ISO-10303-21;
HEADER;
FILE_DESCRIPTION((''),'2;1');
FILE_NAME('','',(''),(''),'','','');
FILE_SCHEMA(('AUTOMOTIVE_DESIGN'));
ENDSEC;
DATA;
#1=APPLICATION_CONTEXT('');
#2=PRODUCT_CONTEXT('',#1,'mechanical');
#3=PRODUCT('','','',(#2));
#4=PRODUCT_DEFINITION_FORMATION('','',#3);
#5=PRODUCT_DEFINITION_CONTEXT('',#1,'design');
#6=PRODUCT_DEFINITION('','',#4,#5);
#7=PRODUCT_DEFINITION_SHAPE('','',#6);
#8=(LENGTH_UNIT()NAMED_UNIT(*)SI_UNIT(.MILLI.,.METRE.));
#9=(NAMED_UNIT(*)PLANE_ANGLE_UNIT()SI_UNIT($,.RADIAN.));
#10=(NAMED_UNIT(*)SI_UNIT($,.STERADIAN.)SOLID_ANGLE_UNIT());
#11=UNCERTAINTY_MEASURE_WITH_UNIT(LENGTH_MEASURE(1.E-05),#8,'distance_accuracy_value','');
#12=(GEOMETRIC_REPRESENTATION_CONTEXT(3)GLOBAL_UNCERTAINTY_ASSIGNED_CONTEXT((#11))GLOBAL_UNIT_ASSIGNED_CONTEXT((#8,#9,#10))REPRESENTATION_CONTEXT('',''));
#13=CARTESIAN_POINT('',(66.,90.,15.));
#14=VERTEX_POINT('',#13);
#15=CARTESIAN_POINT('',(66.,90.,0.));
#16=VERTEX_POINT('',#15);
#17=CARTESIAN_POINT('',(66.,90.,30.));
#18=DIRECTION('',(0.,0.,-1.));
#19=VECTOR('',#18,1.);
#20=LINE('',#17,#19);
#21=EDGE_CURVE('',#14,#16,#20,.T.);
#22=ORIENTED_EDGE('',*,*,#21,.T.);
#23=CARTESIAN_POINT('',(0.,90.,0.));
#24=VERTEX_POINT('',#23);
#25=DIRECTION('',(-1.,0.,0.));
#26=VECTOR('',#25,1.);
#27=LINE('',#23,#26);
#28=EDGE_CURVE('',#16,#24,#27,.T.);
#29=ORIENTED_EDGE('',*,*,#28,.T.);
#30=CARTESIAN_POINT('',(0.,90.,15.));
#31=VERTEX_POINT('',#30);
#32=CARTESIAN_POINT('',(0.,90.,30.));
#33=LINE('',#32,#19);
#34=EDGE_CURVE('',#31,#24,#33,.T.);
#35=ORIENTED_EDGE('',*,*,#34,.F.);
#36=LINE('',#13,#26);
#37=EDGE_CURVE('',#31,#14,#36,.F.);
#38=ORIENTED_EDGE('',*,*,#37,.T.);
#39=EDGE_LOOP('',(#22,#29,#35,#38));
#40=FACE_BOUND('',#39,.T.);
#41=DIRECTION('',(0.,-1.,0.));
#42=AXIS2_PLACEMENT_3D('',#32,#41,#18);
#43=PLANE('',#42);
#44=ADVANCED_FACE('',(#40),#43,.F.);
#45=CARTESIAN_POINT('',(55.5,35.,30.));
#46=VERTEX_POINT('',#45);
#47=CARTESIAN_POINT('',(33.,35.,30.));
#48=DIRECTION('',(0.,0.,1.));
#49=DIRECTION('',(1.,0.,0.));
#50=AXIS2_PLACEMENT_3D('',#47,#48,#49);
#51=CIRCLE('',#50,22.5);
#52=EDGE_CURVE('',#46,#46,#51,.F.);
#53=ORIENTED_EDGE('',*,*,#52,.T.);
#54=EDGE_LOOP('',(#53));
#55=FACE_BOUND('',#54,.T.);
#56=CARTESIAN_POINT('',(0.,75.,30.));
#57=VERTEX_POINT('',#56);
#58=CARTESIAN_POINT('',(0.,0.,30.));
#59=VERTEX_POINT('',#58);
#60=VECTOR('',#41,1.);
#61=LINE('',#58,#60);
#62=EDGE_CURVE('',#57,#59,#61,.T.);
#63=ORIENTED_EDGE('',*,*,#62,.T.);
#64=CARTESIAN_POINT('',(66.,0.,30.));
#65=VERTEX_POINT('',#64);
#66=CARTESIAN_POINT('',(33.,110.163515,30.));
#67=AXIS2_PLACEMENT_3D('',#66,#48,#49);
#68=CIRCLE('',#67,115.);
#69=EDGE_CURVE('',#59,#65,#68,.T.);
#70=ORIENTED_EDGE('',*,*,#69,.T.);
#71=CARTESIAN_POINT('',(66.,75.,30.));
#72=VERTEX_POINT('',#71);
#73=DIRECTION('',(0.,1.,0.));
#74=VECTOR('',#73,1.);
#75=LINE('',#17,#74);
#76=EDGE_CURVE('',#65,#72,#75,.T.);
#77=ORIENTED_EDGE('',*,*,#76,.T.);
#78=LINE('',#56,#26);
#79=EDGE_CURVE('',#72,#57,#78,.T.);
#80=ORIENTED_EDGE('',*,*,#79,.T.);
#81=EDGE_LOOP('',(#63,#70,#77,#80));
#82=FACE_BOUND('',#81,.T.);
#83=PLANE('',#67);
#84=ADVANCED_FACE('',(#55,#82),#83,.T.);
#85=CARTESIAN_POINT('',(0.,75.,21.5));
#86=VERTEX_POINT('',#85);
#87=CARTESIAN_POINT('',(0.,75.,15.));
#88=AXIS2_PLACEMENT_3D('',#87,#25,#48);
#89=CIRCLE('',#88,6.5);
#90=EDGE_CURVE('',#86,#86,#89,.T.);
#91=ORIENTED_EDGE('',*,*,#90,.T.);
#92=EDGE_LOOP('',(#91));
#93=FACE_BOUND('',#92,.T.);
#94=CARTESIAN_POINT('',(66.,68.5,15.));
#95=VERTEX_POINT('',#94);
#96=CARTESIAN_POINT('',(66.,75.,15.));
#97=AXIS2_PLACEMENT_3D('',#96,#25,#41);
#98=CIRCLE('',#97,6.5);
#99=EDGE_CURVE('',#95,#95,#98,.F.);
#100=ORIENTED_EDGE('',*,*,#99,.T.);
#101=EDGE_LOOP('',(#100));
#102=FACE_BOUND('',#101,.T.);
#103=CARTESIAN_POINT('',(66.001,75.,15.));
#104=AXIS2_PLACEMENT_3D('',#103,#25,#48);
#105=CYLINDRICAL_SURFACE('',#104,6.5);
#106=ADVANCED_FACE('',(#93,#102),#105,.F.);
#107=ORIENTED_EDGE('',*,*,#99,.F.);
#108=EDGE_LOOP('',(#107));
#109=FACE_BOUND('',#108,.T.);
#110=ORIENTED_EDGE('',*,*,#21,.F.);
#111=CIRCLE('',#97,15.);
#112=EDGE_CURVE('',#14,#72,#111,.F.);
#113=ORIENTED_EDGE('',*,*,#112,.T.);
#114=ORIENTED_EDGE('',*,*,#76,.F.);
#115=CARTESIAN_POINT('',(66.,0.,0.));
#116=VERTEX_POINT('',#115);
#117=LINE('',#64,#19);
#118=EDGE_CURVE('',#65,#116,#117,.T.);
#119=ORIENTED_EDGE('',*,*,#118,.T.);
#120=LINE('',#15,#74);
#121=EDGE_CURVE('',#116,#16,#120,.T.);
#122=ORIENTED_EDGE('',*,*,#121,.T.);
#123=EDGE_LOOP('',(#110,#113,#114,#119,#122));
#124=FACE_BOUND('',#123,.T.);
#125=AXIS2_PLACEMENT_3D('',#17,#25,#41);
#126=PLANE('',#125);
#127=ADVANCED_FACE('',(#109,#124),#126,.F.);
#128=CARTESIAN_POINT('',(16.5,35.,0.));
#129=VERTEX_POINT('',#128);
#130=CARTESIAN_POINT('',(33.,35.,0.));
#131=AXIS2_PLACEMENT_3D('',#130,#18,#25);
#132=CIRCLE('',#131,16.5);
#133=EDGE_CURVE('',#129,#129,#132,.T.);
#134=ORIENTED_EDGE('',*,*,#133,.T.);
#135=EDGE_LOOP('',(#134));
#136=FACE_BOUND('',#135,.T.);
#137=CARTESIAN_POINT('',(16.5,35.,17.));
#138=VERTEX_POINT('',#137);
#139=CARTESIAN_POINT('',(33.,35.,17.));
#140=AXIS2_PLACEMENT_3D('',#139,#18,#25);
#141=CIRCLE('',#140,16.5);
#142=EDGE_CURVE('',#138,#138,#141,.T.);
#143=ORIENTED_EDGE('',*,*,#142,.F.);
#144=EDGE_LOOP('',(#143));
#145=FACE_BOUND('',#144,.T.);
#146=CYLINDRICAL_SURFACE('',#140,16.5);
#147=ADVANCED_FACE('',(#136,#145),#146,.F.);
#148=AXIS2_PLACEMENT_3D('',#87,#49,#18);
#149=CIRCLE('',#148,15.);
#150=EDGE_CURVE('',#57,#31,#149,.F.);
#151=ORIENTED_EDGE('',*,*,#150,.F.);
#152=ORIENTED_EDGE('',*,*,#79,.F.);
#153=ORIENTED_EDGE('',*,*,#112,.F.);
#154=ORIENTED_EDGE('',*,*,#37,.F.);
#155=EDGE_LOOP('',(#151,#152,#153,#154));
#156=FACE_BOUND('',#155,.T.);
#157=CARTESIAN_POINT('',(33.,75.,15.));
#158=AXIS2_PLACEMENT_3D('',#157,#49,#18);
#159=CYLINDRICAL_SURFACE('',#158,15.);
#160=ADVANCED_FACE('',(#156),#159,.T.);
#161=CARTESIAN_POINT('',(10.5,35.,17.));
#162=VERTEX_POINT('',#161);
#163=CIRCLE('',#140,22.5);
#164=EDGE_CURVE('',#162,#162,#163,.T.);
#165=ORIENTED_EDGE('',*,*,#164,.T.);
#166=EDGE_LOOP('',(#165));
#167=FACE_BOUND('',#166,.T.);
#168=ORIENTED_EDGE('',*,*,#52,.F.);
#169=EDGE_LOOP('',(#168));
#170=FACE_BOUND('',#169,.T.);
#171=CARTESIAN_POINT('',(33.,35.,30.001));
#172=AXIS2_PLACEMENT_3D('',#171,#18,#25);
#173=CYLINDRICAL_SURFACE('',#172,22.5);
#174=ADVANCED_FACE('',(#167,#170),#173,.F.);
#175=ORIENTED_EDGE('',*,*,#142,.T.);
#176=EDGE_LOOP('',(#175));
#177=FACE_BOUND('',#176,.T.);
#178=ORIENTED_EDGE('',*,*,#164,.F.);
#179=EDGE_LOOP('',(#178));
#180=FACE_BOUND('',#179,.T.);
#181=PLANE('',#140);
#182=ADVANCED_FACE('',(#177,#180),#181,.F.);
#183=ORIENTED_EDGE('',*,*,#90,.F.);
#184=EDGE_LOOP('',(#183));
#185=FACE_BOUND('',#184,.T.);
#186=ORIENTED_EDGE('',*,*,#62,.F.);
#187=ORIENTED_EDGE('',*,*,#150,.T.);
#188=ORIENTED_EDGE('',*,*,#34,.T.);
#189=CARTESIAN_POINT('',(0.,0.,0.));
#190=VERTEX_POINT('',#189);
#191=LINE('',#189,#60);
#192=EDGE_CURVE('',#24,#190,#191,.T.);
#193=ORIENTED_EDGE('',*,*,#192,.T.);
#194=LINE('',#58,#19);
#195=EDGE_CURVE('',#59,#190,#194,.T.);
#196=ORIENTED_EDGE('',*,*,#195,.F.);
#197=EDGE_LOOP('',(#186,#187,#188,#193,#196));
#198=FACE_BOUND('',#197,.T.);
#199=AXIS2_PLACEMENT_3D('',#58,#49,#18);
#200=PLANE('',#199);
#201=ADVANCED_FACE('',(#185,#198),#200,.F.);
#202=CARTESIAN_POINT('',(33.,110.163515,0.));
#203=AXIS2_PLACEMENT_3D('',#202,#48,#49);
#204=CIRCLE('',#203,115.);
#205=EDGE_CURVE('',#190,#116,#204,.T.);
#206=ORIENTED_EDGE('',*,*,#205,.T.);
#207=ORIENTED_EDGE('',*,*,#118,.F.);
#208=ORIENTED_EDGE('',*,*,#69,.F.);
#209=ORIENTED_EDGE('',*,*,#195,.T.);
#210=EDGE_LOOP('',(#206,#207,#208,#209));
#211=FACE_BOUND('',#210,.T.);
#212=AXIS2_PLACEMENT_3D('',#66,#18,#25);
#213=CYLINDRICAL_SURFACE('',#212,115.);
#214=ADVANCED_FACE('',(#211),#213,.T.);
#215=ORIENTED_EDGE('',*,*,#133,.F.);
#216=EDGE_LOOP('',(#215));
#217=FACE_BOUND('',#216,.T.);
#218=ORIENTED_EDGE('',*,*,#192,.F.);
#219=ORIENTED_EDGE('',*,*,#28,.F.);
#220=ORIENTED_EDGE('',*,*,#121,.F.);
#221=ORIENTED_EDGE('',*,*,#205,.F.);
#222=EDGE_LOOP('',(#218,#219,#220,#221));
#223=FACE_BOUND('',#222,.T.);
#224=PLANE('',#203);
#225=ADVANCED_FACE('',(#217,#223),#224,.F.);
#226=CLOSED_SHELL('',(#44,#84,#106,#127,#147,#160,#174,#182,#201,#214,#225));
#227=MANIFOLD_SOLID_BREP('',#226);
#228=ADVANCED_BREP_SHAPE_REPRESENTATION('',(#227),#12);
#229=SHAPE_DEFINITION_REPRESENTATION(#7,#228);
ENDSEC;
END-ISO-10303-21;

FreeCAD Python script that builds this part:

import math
import FreeCAD as App
import Part
import Sketcher


def edges_at(feature, points):
    """Names of the edges that pass closest to the given points."""
    edges = feature.Shape.Edges
    near = lambda p: min(range(len(edges)), key=lambda i: edges[i].distToShape(Part.Vertex(*p))[0])
    return sorted({f"Edge{near(p) + 1}" for p in points})

doc = App.newDocument("Part")
body = doc.addObject("PartDesign::Body", "Body")

# Sketch on XY plane
sketch1 = doc.addObject("Sketcher::SketchObject", "Sketch")
body.addObject(sketch1)
sketch1.AttachmentSupport = (doc.XY_Plane, [""])
sketch1.MapMode = "FlatFace"
sketch1.addGeometry(Part.LineSegment(App.Vector(0, 90, 0), App.Vector(0, 0, 0)), False)
sketch1.addGeometry(Part.ArcOfCircle(Part.Circle(App.Vector(33, 110, 0), App.Vector(0, 0, 1), 115), math.radians(-107), math.radians(-73)), False)
sketch1.addGeometry(Part.LineSegment(App.Vector(66, 0, 0), App.Vector(66, 90, 0)), False)
sketch1.addGeometry(Part.LineSegment(App.Vector(66, 90, 0), App.Vector(0, 90, 0)), False)
sketch1.addConstraint(Sketcher.Constraint("Coincident", 0, 2, 1, 1))
sketch1.addConstraint(Sketcher.Constraint("Coincident", 1, 2, 2, 1))
sketch1.addConstraint(Sketcher.Constraint("Coincident", 2, 2, 3, 1))
sketch1.addConstraint(Sketcher.Constraint("Coincident", 3, 2, 0, 1))
sketch1.addConstraint(Sketcher.Constraint("Vertical", 0))
sketch1.addConstraint(Sketcher.Constraint("Vertical", 2))
sketch1.addConstraint(Sketcher.Constraint("Horizontal", 3))
sketch1.addConstraint(Sketcher.Constraint("Coincident", 0, 2, -1, 1))
sketch1.addConstraint(Sketcher.Constraint("PointOnObject", 1, 2, -1))
sketch1.addConstraint(Sketcher.Constraint("Radius", 1, 115.0))
sketch1.addConstraint(Sketcher.Constraint("DistanceX", 3, 2, 3, 1, 66.0))
sketch1.addConstraint(Sketcher.Constraint("DistanceY", 0, 2, 0, 1, 90.0))
pad1 = doc.addObject("PartDesign::Pad", "Pad")
body.addObject(pad1)
pad1.Profile = sketch1
pad1.Length = 30

# Sketch on XY plane
sketch2 = doc.addObject("Sketcher::SketchObject", "Sketch001")
body.addObject(sketch2)
sketch2.AttachmentSupport = (doc.XY_Plane, [""])
sketch2.MapMode = "FlatFace"
sketch2.addGeometry(Part.Circle(App.Vector(33, 35, 0), App.Vector(0, 0, 1), 16), False)
sketch2.addConstraint(Sketcher.Constraint("Diameter", 0, 33.0))
sketch2.addConstraint(Sketcher.Constraint("DistanceX", -1, 1, 0, 3, 33.0))
sketch2.addConstraint(Sketcher.Constraint("DistanceY", -1, 1, 0, 3, 35.0))
pocket1 = doc.addObject("PartDesign::Pocket", "Pocket")
body.addObject(pocket1)
pocket1.Profile = sketch2
pocket1.Length = 17
pocket1.Reversed = True

# Sketch on XY plane
sketch3 = doc.addObject("Sketcher::SketchObject", "Sketch002")
body.addObject(sketch3)
sketch3.AttachmentSupport = (doc.XY_Plane, [""])
sketch3.MapMode = "FlatFace"
sketch3.AttachmentOffset = App.Placement(App.Vector(0, 0, 17), App.Rotation())
sketch3.addGeometry(Part.Circle(App.Vector(33, 35, 0), App.Vector(0, 0, 1), 22), False)
sketch3.addConstraint(Sketcher.Constraint("Diameter", 0, 45.0))
sketch3.addConstraint(Sketcher.Constraint("DistanceX", -1, 1, 0, 3, 33.0))
sketch3.addConstraint(Sketcher.Constraint("DistanceY", -1, 1, 0, 3, 35.0))
pocket2 = doc.addObject("PartDesign::Pocket", "Pocket001")
body.addObject(pocket2)
pocket2.Profile = sketch3
pocket2.Type = "UpToFirst"
pocket2.Reversed = True
doc.recompute()

fillet = doc.addObject("PartDesign::Fillet", "Fillet")
body.addObject(fillet)
fillet.Base = (pocket2, edges_at(pocket2, [(33, 90, 30)]))
fillet.Radius = 15

# Sketch on YZ plane
sketch4 = doc.addObject("Sketcher::SketchObject", "Sketch003")
body.addObject(sketch4)
sketch4.AttachmentSupport = (doc.YZ_Plane, [""])
sketch4.MapMode = "FlatFace"
sketch4.addGeometry(Part.Circle(App.Vector(75, 15, 0), App.Vector(0, 0, 1), 6), False)
sketch4.addConstraint(Sketcher.Constraint("Diameter", 0, 13.0))
sketch4.addConstraint(Sketcher.Constraint("DistanceX", -1, 1, 0, 3, 75.0))
sketch4.addConstraint(Sketcher.Constraint("DistanceY", -1, 1, 0, 3, 15.0))
pocket3 = doc.addObject("PartDesign::Pocket", "Pocket002")
body.addObject(pocket3)
pocket3.Profile = sketch4
pocket3.Type = "UpToFirst"
pocket3.Reversed = True

doc.recompute()
